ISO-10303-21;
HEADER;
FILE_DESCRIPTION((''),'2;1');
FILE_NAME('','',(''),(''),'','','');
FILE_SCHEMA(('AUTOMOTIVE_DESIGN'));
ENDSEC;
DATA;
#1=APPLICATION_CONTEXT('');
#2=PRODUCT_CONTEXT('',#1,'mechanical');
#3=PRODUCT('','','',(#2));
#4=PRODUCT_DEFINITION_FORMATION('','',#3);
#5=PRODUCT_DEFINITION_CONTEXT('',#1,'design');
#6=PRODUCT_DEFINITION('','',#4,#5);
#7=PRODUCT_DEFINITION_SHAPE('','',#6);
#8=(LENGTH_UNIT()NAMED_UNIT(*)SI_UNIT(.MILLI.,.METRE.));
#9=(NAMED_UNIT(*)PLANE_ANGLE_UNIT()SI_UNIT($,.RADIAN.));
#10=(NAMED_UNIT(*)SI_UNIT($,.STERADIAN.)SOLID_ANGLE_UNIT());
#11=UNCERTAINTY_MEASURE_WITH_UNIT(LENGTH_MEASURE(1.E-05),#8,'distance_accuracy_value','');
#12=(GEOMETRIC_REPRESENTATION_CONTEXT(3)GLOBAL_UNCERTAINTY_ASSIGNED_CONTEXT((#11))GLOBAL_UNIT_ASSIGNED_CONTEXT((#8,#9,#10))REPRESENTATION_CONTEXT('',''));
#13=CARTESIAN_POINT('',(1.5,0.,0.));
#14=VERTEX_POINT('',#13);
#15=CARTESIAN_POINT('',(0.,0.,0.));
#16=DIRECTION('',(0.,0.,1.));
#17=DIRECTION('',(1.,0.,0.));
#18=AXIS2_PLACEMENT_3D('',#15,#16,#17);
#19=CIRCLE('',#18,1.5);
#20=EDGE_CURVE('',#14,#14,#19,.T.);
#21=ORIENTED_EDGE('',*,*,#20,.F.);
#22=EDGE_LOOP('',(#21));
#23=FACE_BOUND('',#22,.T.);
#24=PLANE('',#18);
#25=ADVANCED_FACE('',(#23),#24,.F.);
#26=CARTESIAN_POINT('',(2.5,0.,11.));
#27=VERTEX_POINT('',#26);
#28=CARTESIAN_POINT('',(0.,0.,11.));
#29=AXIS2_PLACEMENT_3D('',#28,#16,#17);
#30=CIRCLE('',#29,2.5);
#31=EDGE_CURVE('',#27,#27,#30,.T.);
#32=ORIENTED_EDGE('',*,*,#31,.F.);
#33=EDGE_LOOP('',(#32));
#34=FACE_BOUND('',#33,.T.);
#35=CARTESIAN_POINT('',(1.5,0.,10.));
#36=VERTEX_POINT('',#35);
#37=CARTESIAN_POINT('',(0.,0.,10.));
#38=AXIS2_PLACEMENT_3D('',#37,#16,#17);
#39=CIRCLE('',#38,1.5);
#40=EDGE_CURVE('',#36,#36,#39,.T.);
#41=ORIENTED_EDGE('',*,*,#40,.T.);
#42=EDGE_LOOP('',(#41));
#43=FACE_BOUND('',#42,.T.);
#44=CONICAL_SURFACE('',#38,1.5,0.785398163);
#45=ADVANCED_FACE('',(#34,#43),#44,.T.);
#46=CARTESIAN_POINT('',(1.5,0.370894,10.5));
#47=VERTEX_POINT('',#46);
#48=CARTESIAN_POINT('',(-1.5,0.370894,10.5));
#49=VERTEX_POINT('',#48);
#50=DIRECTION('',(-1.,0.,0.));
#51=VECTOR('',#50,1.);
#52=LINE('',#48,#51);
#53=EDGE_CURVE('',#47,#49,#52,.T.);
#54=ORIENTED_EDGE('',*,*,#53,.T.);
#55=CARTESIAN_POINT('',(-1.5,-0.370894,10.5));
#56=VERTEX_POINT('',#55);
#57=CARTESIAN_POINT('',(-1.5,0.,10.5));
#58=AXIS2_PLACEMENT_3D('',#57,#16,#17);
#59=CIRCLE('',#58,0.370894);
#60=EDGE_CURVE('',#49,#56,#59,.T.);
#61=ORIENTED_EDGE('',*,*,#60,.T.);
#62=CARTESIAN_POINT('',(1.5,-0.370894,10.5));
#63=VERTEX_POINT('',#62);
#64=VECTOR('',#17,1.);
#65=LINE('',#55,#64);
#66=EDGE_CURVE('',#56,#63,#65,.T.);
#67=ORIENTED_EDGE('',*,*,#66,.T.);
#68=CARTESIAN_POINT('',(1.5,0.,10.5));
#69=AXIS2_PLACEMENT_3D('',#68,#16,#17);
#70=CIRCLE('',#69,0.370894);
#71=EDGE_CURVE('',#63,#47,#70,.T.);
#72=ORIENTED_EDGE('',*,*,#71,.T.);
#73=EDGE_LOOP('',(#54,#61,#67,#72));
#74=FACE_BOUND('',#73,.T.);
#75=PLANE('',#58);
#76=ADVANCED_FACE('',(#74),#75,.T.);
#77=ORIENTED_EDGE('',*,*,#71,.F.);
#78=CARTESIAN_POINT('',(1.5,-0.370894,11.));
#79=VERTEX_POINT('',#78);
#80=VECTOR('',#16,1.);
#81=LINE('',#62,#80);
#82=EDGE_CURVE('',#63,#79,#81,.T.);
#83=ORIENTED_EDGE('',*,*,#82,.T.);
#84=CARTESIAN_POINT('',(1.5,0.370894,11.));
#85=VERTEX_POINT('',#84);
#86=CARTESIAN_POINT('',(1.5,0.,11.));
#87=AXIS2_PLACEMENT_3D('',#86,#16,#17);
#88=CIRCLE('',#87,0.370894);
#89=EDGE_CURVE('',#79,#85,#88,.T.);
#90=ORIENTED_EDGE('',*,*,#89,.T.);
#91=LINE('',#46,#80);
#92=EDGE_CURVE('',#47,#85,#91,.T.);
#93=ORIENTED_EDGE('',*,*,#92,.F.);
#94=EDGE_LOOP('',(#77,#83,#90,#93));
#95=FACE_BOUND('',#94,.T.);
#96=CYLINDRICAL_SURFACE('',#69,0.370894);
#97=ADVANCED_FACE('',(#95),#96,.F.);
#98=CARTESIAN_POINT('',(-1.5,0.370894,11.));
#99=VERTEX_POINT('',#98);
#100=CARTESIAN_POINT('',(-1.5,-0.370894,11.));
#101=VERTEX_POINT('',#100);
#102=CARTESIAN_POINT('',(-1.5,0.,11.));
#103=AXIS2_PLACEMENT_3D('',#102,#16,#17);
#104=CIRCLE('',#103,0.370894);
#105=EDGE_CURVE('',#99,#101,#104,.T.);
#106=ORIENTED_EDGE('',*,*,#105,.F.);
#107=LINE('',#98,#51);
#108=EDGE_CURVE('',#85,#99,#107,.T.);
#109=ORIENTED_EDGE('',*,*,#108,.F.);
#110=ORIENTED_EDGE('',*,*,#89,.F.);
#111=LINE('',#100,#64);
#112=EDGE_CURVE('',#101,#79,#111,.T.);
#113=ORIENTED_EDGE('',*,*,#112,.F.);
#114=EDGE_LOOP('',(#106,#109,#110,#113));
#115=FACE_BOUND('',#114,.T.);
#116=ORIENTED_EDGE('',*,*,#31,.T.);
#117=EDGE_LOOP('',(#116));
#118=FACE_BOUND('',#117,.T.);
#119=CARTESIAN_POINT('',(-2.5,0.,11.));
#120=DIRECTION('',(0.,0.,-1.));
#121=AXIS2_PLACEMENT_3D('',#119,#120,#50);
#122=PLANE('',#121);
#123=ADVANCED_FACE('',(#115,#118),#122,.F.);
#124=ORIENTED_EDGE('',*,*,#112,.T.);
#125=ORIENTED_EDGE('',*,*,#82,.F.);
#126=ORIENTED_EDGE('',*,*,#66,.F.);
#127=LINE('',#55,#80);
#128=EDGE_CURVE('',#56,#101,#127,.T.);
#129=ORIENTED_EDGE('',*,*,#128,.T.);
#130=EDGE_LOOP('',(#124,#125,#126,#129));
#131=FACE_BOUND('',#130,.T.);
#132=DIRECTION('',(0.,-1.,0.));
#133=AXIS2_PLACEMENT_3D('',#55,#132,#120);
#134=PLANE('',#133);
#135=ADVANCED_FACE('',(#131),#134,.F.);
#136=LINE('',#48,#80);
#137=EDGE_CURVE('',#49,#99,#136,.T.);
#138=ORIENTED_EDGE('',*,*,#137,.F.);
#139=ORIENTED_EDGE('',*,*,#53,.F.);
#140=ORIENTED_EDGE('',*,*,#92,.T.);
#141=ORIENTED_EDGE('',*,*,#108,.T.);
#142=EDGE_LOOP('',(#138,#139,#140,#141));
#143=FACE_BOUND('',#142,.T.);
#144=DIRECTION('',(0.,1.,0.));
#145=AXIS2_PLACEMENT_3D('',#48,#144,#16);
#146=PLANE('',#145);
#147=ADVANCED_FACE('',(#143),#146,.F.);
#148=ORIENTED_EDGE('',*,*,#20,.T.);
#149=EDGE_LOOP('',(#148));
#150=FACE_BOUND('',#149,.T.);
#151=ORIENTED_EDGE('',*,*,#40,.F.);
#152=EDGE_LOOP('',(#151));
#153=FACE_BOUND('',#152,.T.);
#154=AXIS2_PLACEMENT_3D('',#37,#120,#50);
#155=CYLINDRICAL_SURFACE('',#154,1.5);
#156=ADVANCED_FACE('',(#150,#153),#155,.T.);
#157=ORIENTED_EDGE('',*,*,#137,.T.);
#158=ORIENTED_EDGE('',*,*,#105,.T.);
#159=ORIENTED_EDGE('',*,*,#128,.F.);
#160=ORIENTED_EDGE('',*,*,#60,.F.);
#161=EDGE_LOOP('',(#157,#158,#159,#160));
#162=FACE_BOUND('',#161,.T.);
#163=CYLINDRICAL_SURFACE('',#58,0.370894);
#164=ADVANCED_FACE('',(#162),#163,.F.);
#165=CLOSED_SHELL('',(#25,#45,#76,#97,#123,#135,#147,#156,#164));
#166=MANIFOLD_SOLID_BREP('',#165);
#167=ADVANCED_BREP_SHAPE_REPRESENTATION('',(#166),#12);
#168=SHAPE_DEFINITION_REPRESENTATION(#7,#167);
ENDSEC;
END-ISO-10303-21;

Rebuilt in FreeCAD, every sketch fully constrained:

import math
import FreeCAD as App
import Part
import Sketcher
Q = App.Units.Quantity


def add_polygon(sketch, points):
    """Adds a closed chain of lines whose ends are joined by coincident constraints."""
    first, n = sketch.GeometryCount, len(points)
    for a, b in zip(points, points[1:] + points[:1]):
        sketch.addGeometry(Part.LineSegment(App.Vector(*a, 0), App.Vector(*b, 0)), False)
    for i in range(n):
        sketch.addConstraint(Sketcher.Constraint("Coincident", first + i, 2, first + (i + 1) % n, 1))

doc = App.newDocument("Part")
body = doc.addObject("PartDesign::Body", "Body")

# Sketch on XY plane
sketch1 = body.newObject("Sketcher::SketchObject", "Sketch")
sketch1.AttachmentSupport = (doc.getObject("XY_Plane"), [""])
sketch1.MapMode = "FlatFace"
sketch1.addGeometry(Part.Circle(App.Vector(0, 0, 0), App.Vector(0, 0, 1), 1.5), False)
sketch1.addConstraint(Sketcher.Constraint("Coincident", 0, 3, -1, 1))
sketch1.addConstraint(Sketcher.Constraint("Diameter", 0, 3.0))
pad1 = body.newObject("PartDesign::Pad", "Pad")
pad1.Profile = sketch1
pad1.Length = 10

# Sketch on XZ plane
sketch2 = body.newObject("Sketcher::SketchObject", "Sketch001")
sketch2.AttachmentSupport = (doc.getObject("XZ_Plane"), [""])
sketch2.MapMode = "FlatFace"
add_polygon(sketch2, [(-1.5, 10), (-2.5, 11), (0, 11), (0, 10)])  # lines 0-3
sketch2.addConstraint(Sketcher.Constraint("Horizontal", 1))
sketch2.addConstraint(Sketcher.Constraint("Vertical", 2))
sketch2.addConstraint(Sketcher.Constraint("Horizontal", 3))
sketch2.addConstraint(Sketcher.Constraint("PointOnObject", 1, 2, -2))
sketch2.addConstraint(Sketcher.Constraint("DistanceY", 2, 2, 2, 1, 1.0))
sketch2.addConstraint(Sketcher.Constraint("Angle", 0, Q("135 deg")))
sketch2.addConstraint(Sketcher.Constraint("DistanceX", 1, 1, 1, 2, 2.5))
sketch2.addConstraint(Sketcher.Constraint("DistanceY", -1, 1, 0, 2, 11.0))
revolution = body.newObject("PartDesign::Revolution", "Revolution")
revolution.Profile = sketch2
revolution.ReferenceAxis = (sketch2, ["V_Axis"])
revolution.Angle = 360

# Sketch on XY plane
sketch3 = body.newObject("Sketcher::SketchObject", "Sketch002")
sketch3.AttachmentSupport = (doc.getObject("XY_Plane"), [""])
sketch3.MapMode = "FlatFace"
sketch3.AttachmentOffset = App.Placement(App.Vector(0, 0, 11), App.Rotation())
sketch3.addGeometry(Part.LineSegment(App.Vector(1.5, 0.370894, 0), App.Vector(-1.5, 0.370894, 0)), False)
sketch3.addGeometry(Part.ArcOfCircle(Part.Circle(App.Vector(-1.5, 0, 0), App.Vector(0, 0, 1), 0.370894), math.radians(90), math.radians(270)), False)
sketch3.addGeometry(Part.LineSegment(App.Vector(-1.5, -0.370894, 0), App.Vector(1.5, -0.370894, 0)), False)
sketch3.addGeometry(Part.ArcOfCircle(Part.Circle(App.Vector(1.5, 0, 0), App.Vector(0, 0, 1), 0.370894), math.radians(-90), math.radians(90)), False)
sketch3.addConstraint(Sketcher.Constraint("Tangent", 0, 2, 1, 1))
sketch3.addConstraint(Sketcher.Constraint("Tangent", 1, 2, 2, 1))
sketch3.addConstraint(Sketcher.Constraint("Tangent", 2, 2, 3, 1))
sketch3.addConstraint(Sketcher.Constraint("Tangent", 3, 2, 0, 1))
sketch3.addConstraint(Sketcher.Constraint("Horizontal", 0))
sketch3.addConstraint(Sketcher.Constraint("Horizontal", 2))
sketch3.addConstraint(Sketcher.Constraint("Symmetric", 1, 3, 3, 3, -1, 1))
sketch3.addConstraint(Sketcher.Constraint("DistanceX", 0, 2, 0, 1, 3.0))
sketch3.addConstraint(Sketcher.Constraint("Radius", 1, 0.370894))
pocket1 = body.newObject("PartDesign::Pocket", "Pocket")
pocket1.Profile = sketch3
pocket1.Length = 0.5

doc.recompute()
